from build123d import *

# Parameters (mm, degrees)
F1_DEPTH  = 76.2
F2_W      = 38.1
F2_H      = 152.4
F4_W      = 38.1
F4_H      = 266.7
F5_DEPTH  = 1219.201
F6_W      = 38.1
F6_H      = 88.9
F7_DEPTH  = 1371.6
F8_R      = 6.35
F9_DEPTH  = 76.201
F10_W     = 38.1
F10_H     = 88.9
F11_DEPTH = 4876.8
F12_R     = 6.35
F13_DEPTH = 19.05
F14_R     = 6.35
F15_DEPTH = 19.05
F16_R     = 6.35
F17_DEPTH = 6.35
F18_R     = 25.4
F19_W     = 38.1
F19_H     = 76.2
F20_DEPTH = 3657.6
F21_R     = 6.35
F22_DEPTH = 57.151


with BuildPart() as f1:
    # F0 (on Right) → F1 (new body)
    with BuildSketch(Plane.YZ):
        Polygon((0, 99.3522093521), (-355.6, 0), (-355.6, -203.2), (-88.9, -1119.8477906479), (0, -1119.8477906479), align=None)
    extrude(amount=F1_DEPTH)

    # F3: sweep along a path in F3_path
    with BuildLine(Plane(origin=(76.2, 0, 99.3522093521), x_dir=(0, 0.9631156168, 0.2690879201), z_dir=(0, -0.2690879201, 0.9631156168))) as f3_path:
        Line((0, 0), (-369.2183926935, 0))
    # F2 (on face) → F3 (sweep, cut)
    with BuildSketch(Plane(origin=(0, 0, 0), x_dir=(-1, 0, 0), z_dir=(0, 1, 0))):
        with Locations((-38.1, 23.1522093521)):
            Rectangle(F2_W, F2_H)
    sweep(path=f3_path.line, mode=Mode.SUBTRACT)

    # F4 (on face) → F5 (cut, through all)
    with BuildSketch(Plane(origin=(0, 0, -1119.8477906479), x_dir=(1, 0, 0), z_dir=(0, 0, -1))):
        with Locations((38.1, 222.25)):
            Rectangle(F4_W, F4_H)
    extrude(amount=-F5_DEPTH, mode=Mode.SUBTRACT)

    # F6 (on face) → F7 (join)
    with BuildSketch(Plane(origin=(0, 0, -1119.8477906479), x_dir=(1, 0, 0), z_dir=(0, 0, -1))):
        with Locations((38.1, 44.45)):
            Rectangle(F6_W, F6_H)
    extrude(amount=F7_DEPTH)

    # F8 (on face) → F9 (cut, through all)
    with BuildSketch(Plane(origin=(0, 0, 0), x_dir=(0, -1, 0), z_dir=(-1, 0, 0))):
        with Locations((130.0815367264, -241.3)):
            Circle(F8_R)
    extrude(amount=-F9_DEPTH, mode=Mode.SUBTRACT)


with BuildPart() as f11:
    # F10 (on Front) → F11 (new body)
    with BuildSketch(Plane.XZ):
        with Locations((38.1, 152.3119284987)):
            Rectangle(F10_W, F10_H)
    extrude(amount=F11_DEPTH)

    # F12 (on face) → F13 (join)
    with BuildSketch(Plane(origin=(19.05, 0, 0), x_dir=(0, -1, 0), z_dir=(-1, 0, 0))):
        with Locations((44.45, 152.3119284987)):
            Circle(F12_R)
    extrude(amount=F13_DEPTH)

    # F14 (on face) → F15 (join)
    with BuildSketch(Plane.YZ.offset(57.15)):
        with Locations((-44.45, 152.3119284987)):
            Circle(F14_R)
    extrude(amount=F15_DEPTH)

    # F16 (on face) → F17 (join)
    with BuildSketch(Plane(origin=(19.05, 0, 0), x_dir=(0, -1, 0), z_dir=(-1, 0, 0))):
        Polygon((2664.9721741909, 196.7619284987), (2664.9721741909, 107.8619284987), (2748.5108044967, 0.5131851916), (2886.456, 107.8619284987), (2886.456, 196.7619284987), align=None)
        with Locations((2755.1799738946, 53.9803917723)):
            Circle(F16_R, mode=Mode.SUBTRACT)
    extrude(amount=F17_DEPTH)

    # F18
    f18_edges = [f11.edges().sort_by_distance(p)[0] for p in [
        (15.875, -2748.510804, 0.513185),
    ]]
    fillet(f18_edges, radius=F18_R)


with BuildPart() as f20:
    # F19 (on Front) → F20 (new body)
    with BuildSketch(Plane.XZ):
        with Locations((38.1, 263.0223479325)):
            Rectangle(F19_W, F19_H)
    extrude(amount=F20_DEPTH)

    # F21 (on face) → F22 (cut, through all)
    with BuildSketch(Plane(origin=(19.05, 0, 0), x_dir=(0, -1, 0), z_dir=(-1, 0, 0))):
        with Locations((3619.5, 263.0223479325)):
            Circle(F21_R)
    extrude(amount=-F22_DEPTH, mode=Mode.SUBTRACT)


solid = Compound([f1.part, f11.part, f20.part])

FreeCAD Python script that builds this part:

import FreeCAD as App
import Part
import Sketcher

V = App.Vector
Q = App.Units.Quantity


def edges_at(feature, points):
    """Names of the edges that pass closest to the given points."""
    edges = feature.Shape.Edges
    near = lambda p: min(range(len(edges)), key=lambda i: edges[i].distToShape(Part.Vertex(*p))[0])
    return sorted({f"Edge{near(p) + 1}" for p in points})

doc = App.newDocument("Part")
params = doc.addObject("Spreadsheet::Sheet", "Params")
for row, (alias, value) in enumerate([
    ("sketch1_height", "8 in"),
    ("sketch1_height2", "48 in"),
    ("sketch1_width", "3.5 in"),
    ("pad1_length", "3 in"),
    ("sketch2_height", "6 in"),
    ("sketch2_width", "1.5 in"),
    ("sketch4_width", "1.5 in"),
    ("sketch4_height", "10.5 in"),
    ("sketch5_width", "1.5 in"),
    ("sketch5_height", "3.5 in"),
    ("pad2_length", "54 in"),
    ("sketch6_diameter", "0.5 in"),
    ("sketch7_width", "1.5 in"),
    ("sketch7_height", "3.5 in"),
    ("pad3_length", "192 in"),
    ("sketch8_diameter", "0.5 in"),
    ("pad4_length", "0.75 in"),
    ("sketch9_diameter", "0.5 in"),
    ("pad5_length", "0.75 in"),
    ("sketch10_diameter", "0.5 in"),
    ("sketch10_height", "3.5 in"),
    ("pad6_length", "0.25 in"),
    ("fillet_radius", "1 in"),
    ("sketch11_height", "3 in"),
    ("sketch11_width", "1.5 in"),
    ("pad7_length", "144 in"),
    ("sketch12_diameter", "0.5 in"),
], start=1):
    params.set(f"A{row}", alias)
    params.set(f"B{row}", "=" + value)
    params.setAlias(f"B{row}", alias)

body = doc.addObject("PartDesign::Body", "Body")

# Sketch on YZ plane
sketch1 = body.newObject("Sketcher::SketchObject", "Sketch")
sketch1.AttachmentSupport = (doc.getObject("YZ_Plane"), [""])
sketch1.MapMode = "FlatFace"
sketch1.addGeometry(Part.LineSegment(V(0, 99, 0), V(-356, 0, 0)), False)
sketch1.addGeometry(Part.LineSegment(V(-356, 0, 0), V(-356, -203, 0)), False)
sketch1.addGeometry(Part.LineSegment(V(-356, -203, 0), V(-89, -1120, 0)), False)
sketch1.addGeometry(Part.LineSegment(V(-89, -1120, 0), V(0, -1120, 0)), False)
sketch1.addGeometry(Part.LineSegment(V(0, -1120, 0), V(0, 99, 0)), False)
sketch1.addConstraint(Sketcher.Constraint("Coincident", 0, 2, 1, 1))
sketch1.addConstraint(Sketcher.Constraint("Coincident", 1, 2, 2, 1))
sketch1.addConstraint(Sketcher.Constraint("Coincident", 2, 2, 3, 1))
sketch1.addConstraint(Sketcher.Constraint("Coincident", 3, 2, 4, 1))
sketch1.addConstraint(Sketcher.Constraint("Coincident", 4, 2, 0, 1))
sketch1.addConstraint(Sketcher.Constraint("Vertical", 1))
sketch1.addConstraint(Sketcher.Constraint("Horizontal", 3))
sketch1.addConstraint(Sketcher.Constraint("Vertical", 4))
sketch1.addConstraint(Sketcher.Constraint("PointOnObject", 0, 2, -1))
sketch1.addConstraint(Sketcher.Constraint("PointOnObject", 3, 2, -2))
sketch1.addConstraint(Sketcher.Constraint("DistanceY", 1, 2, 1, 1, Q("8 in")))
sketch1.addConstraint(Sketcher.Constraint("DistanceY", 4, 1, 4, 2, Q("48 in")))
sketch1.addConstraint(Sketcher.Constraint("DistanceX", 3, 1, 3, 2, Q("3.5 in")))
sketch1.addConstraint(Sketcher.Constraint("DistanceX", 0, 2, -1, 1, Q("14 in")))
sketch1.addConstraint(Sketcher.Constraint("Angle", 0, Q("-164.39 deg")))
sketch1.setExpression("Constraints[10]", "Params.sketch1_height")
sketch1.setExpression("Constraints[11]", "Params.sketch1_height2")
sketch1.setExpression("Constraints[12]", "Params.sketch1_width")
pad1 = body.newObject("PartDesign::Pad", "Pad")
pad1.Profile = sketch1
pad1.setExpression("Length", "Params.pad1_length")

# Sketch on XZ plane
sketch2 = body.newObject("Sketcher::SketchObject", "Sketch001")
sketch2.AttachmentSupport = (doc.getObject("XZ_Plane"), [""])
sketch2.MapMode = "FlatFace"
sketch2.addGeometry(Part.LineSegment(V(57, 99, 0), V(57, -53, 0)), False)
sketch2.addGeometry(Part.LineSegment(V(57, -53, 0), V(19, -53, 0)), False)
sketch2.addGeometry(Part.LineSegment(V(19, -53, 0), V(19, 99, 0)), False)
sketch2.addGeometry(Part.LineSegment(V(19, 99, 0), V(57, 99, 0)), False)
sketch2.addConstraint(Sketcher.Constraint("Coincident", 0, 2, 1, 1))
sketch2.addConstraint(Sketcher.Constraint("Coincident", 1, 2, 2, 1))
sketch2.addConstraint(Sketcher.Constraint("Coincident", 2, 2, 3, 1))
sketch2.addConstraint(Sketcher.Constraint("Coincident", 3, 2, 0, 1))
sketch2.addConstraint(Sketcher.Constraint("Vertical", 0))
sketch2.addConstraint(Sketcher.Constraint("Horizontal", 1))
sketch2.addConstraint(Sketcher.Constraint("Vertical", 2))
sketch2.addConstraint(Sketcher.Constraint("Horizontal", 3))
sketch2.addConstraint(Sketcher.Constraint("DistanceY", 0, 2, 0, 1, Q("6 in")))
sketch2.addConstraint(Sketcher.Constraint("DistanceX", 1, 2, 1, 1, Q("1.5 in")))
sketch2.addConstraint(Sketcher.Constraint("DistanceX", -1, 1, 0, 2, Q("2.25 in")))
sketch2.addConstraint(Sketcher.Constraint("DistanceY", 0, 2, -1, 1, Q("53.047791 mm")))
sketch2.setExpression("Constraints[8]", "Params.sketch2_height")
sketch2.setExpression("Constraints[9]", "Params.sketch2_width")

# Sketch on an angled plane
sketch3 = body.newObject("Sketcher::SketchObject", "Sketch002")
sketch3.Placement = App.Placement(V(0, -25.748395, 92.158284), App.Rotation(V(0, -0.963115617, -0.26908792), V(1, 0, 0), V(0, -0.26908792, 0.963115617), "ZXY"))
sketch3.addGeometry(Part.LineSegment(V(-27, 76, 0), V(342, 76, 0)), False)
sketch3.addConstraint(Sketcher.Constraint("Horizontal", 0))
sketch3.addConstraint(Sketcher.Constraint("DistanceY", -1, 1, 0, 1, Q("3 in")))
sketch3.addConstraint(Sketcher.Constraint("DistanceX", 0, 1, 0, 2, Q("369.218393 mm")))
sketch3.addConstraint(Sketcher.Constraint("DistanceX", 0, 1, -1, 1, Q("26.734479 mm")))
doc.recompute()

subtractivepipe = body.newObject("PartDesign::SubtractivePipe", "SubtractivePipe")
subtractivepipe.Profile = sketch2
subtractivepipe.Spine = (sketch3, ["Edge1"])

# Sketch on XY plane
sketch4 = body.newObject("Sketcher::SketchObject", "Sketch003")
sketch4.AttachmentSupport = (doc.getObject("XY_Plane"), [""])
sketch4.MapMode = "FlatFace"
sketch4.AttachmentOffset = App.Placement(V(0, 0, -1119.847791), App.Rotation())
sketch4.addGeometry(Part.LineSegment(V(19, -356, 0), V(19, -89, 0)), False)
sketch4.addGeometry(Part.LineSegment(V(19, -89, 0), V(57, -89, 0)), False)
sketch4.addGeometry(Part.LineSegment(V(57, -89, 0), V(57, -356, 0)), False)
sketch4.addGeometry(Part.LineSegment(V(57, -356, 0), V(19, -356, 0)), False)
sketch4.addConstraint(Sketcher.Constraint("Coincident", 0, 2, 1, 1))
sketch4.addConstraint(Sketcher.Constraint("Coincident", 1, 2, 2, 1))
sketch4.addConstraint(Sketcher.Constraint("Coincident", 2, 2, 3, 1))
sketch4.addConstraint(Sketcher.Constraint("Coincident", 3, 2, 0, 1))
sketch4.addConstraint(Sketcher.Constraint("Vertical", 0))
sketch4.addConstraint(Sketcher.Constraint("Horizontal", 1))
sketch4.addConstraint(Sketcher.Constraint("Vertical", 2))
sketch4.addConstraint(Sketcher.Constraint("Horizontal", 3))
sketch4.addConstraint(Sketcher.Constraint("DistanceX", 1, 1, 1, 2, Q("1.5 in")))
sketch4.addConstraint(Sketcher.Constraint("DistanceY", 0, 1, 0, 2, Q("10.5 in")))
sketch4.addConstraint(Sketcher.Constraint("DistanceY", 2, 2, -1, 1, Q("14 in")))
sketch4.addConstraint(Sketcher.Constraint("DistanceX", -1, 1, 0, 2, Q("0.75 in")))
sketch4.setExpression("Constraints[8]", "Params.sketch4_width")
sketch4.setExpression("Constraints[9]", "Params.sketch4_height")
pocket1 = body.newObject("PartDesign::Pocket", "Pocket")
pocket1.Profile = sketch4
pocket1.Type = "ThroughAll"
pocket1.Reversed = True

# Sketch on XY plane
sketch5 = body.newObject("Sketcher::SketchObject", "Sketch004")
sketch5.AttachmentSupport = (doc.getObject("XY_Plane"), [""])
sketch5.MapMode = "FlatFace"
sketch5.AttachmentOffset = App.Placement(V(0, 0, -1119.847791), App.Rotation())
sketch5.addGeometry(Part.LineSegment(V(19, -89, 0), V(19, 0, 0)), False)
sketch5.addGeometry(Part.LineSegment(V(19, 0, 0), V(57, 0, 0)), False)
sketch5.addGeometry(Part.LineSegment(V(57, 0, 0), V(57, -89, 0)), False)
sketch5.addGeometry(Part.LineSegment(V(57, -89, 0), V(19, -89, 0)), False)
sketch5.addConstraint(Sketcher.Constraint("Coincident", 0, 2, 1, 1))
sketch5.addConstraint(Sketcher.Constraint("Coincident", 1, 2, 2, 1))
sketch5.addConstraint(Sketcher.Constraint("Coincident", 2, 2, 3, 1))
sketch5.addConstraint(Sketcher.Constraint("Coincident", 3, 2, 0, 1))
sketch5.addConstraint(Sketcher.Constraint("Vertical", 0))
sketch5.addConstraint(Sketcher.Constraint("Horizontal", 1))
sketch5.addConstraint(Sketcher.Constraint("Vertical", 2))
sketch5.addConstraint(Sketcher.Constraint("Horizontal", 3))
sketch5.addConstraint(Sketcher.Constraint("PointOnObject", 0, 2, -1))
sketch5.addConstraint(Sketcher.Constraint("DistanceX", 1, 1, 1, 2, Q("1.5 in")))
sketch5.addConstraint(Sketcher.Constraint("DistanceY", 0, 1, 0, 2, Q("3.5 in")))
sketch5.addConstraint(Sketcher.Constraint("DistanceX", -1, 1, 0, 2, Q("0.75 in")))
sketch5.setExpression("Constraints[9]", "Params.sketch5_width")
sketch5.setExpression("Constraints[10]", "Params.sketch5_height")
pad2 = body.newObject("PartDesign::Pad", "Pad001")
pad2.Profile = sketch5
pad2.setExpression("Length", "Params.pad2_length")
pad2.Reversed = True

# Sketch on YZ plane
sketch6 = body.newObject("Sketcher::SketchObject", "Sketch005")
sketch6.AttachmentSupport = (doc.getObject("YZ_Plane"), [""])
sketch6.MapMode = "FlatFace"
sketch6.addGeometry(Part.Circle(V(-130, -241, 0), V(0, 0, 1), 6), False)
sketch6.addConstraint(Sketcher.Constraint("Diameter", 0, Q("0.5 in")))
sketch6.addConstraint(Sketcher.Constraint("DistanceY", 0, 3, -1, 1, Q("9.5 in")))
sketch6.addConstraint(Sketcher.Constraint("DistanceX", 0, 3, -1, 1, Q("130.081537 mm")))
sketch6.setExpression("Constraints[0]", "Params.sketch6_diameter")
pocket2 = body.newObject("PartDesign::Pocket", "Pocket001")
pocket2.Profile = sketch6
pocket2.Type = "ThroughAll"
pocket2.Reversed = True
body2 = doc.addObject("PartDesign::Body", "Body001")

# Sketch on XZ plane
sketch7 = body2.newObject("Sketcher::SketchObject", "Sketch006")
sketch7.AttachmentSupport = (doc.getObject("XZ_Plane001"), [""])
sketch7.MapMode = "FlatFace"
sketch7.addGeometry(Part.LineSegment(V(19, 197, 0), V(19, 108, 0)), False)
sketch7.addGeometry(Part.LineSegment(V(19, 108, 0), V(57, 108, 0)), False)
sketch7.addGeometry(Part.LineSegment(V(57, 108, 0), V(57, 197, 0)), False)
sketch7.addGeometry(Part.LineSegment(V(57, 197, 0), V(19, 197, 0)), False)
sketch7.addConstraint(Sketcher.Constraint("Coincident", 0, 2, 1, 1))
sketch7.addConstraint(Sketcher.Constraint("Coincident", 1, 2, 2, 1))
sketch7.addConstraint(Sketcher.Constraint("Coincident", 2, 2, 3, 1))
sketch7.addConstraint(Sketcher.Constraint("Coincident", 3, 2, 0, 1))
sketch7.addConstraint(Sketcher.Constraint("Vertical", 0))
sketch7.addConstraint(Sketcher.Constraint("Horizontal", 1))
sketch7.addConstraint(Sketcher.Constraint("Vertical", 2))
sketch7.addConstraint(Sketcher.Constraint("Horizontal", 3))
sketch7.addConstraint(Sketcher.Constraint("DistanceX", 1, 1, 1, 2, Q("1.5 in")))
sketch7.addConstraint(Sketcher.Constraint("DistanceY", 0, 2, 0, 1, Q("3.5 in")))
sketch7.addConstraint(Sketcher.Constraint("DistanceX", -1, 1, 0, 2, Q("0.75 in")))
sketch7.addConstraint(Sketcher.Constraint("DistanceY", -1, 1, 0, 2, Q("107.861928 mm")))
sketch7.setExpression("Constraints[8]", "Params.sketch7_width")
sketch7.setExpression("Constraints[9]", "Params.sketch7_height")
pad3 = body2.newObject("PartDesign::Pad", "Pad002")
pad3.Profile = sketch7
pad3.setExpression("Length", "Params.pad3_length")

# Sketch on YZ plane
sketch8 = body2.newObject("Sketcher::SketchObject", "Sketch007")
sketch8.AttachmentSupport = (doc.getObject("YZ_Plane001"), [""])
sketch8.MapMode = "FlatFace"
sketch8.AttachmentOffset = App.Placement(V(0, 0, 0.75 * 25.4), App.Rotation())
sketch8.addGeometry(Part.Circle(V(-44, 152, 0), V(0, 0, 1), 6), False)
sketch8.addConstraint(Sketcher.Constraint("Diameter", 0, Q("0.5 in")))
sketch8.addConstraint(Sketcher.Constraint("DistanceX", 0, 3, -1, 1, Q("1.75 in")))
sketch8.addConstraint(Sketcher.Constraint("DistanceY", -1, 1, 0, 3, Q("152.311928 mm")))
sketch8.setExpression("Constraints[0]", "Params.sketch8_diameter")
pad4 = body2.newObject("PartDesign::Pad", "Pad003")
pad4.Profile = sketch8
pad4.setExpression("Length", "Params.pad4_length")
pad4.Reversed = True

# Sketch on YZ plane
sketch9 = body2.newObject("Sketcher::SketchObject", "Sketch008")
sketch9.AttachmentSupport = (doc.getObject("YZ_Plane001"), [""])
sketch9.MapMode = "FlatFace"
sketch9.AttachmentOffset = App.Placement(V(0, 0, 2.25 * 25.4), App.Rotation())
sketch9.addGeometry(Part.Circle(V(-44, 152, 0), V(0, 0, 1), 6), False)
sketch9.addConstraint(Sketcher.Constraint("Diameter", 0, Q("0.5 in")))
sketch9.addConstraint(Sketcher.Constraint("DistanceX", 0, 3, -1, 1, Q("1.75 in")))
sketch9.addConstraint(Sketcher.Constraint("DistanceY", -1, 1, 0, 3, Q("152.311928 mm")))
sketch9.setExpression("Constraints[0]", "Params.sketch9_diameter")
pad5 = body2.newObject("PartDesign::Pad", "Pad004")
pad5.Profile = sketch9
pad5.setExpression("Length", "Params.pad5_length")

# Sketch on YZ plane
sketch10 = body2.newObject("Sketcher::SketchObject", "Sketch009")
sketch10.AttachmentSupport = (doc.getObject("YZ_Plane001"), [""])
sketch10.MapMode = "FlatFace"
sketch10.AttachmentOffset = App.Placement(V(0, 0, 0.75 * 25.4), App.Rotation())
sketch10.addGeometry(Part.LineSegment(V(-2665, 197, 0), V(-2665, 108, 0)), False)
sketch10.addGeometry(Part.LineSegment(V(-2665, 108, 0), V(-2749, 1, 0)), False)
sketch10.addGeometry(Part.LineSegment(V(-2749, 1, 0), V(-2886, 108, 0)), False)
sketch10.addGeometry(Part.LineSegment(V(-2886, 108, 0), V(-2886, 197, 0)), False)
sketch10.addGeometry(Part.LineSegment(V(-2886, 197, 0), V(-2665, 197, 0)), False)
sketch10.addGeometry(Part.Circle(V(-2755, 54, 0), V(0, 0, 1), 6), False)
sketch10.addConstraint(Sketcher.Constraint("Coincident", 0, 2, 1, 1))
sketch10.addConstraint(Sketcher.Constraint("Coincident", 1, 2, 2, 1))
sketch10.addConstraint(Sketcher.Constraint("Coincident", 2, 2, 3, 1))
sketch10.addConstraint(Sketcher.Constraint("Coincident", 3, 2, 4, 1))
sketch10.addConstraint(Sketcher.Constraint("Coincident", 4, 2, 0, 1))
sketch10.addConstraint(Sketcher.Constraint("Vertical", 0))
sketch10.addConstraint(Sketcher.Constraint("Vertical", 3))
sketch10.addConstraint(Sketcher.Constraint("Horizontal", 4))
sketch10.addConstraint(Sketcher.Constraint("Perpendicular", 1, 2))
sketch10.addConstraint(Sketcher.Constraint("Horizontal", 0, 2, 2, 2))
sketch10.addConstraint(Sketcher.Constraint("Diameter", 5, Q("0.5 in")))
sketch10.addConstraint(Sketcher.Constraint("DistanceY", 0, 2, 0, 1, Q("3.5 in")))
sketch10.addConstraint(Sketcher.Constraint("DistanceX", 2, 2, -1, 1, Q("113.64 in")))
sketch10.addConstraint(Sketcher.Constraint("Angle", 1, Q("-127.89 deg")))
sketch10.addConstraint(Sketcher.Constraint("DistanceX", 5, 3, 0, 2, Q("90.2078 mm")))
sketch10.addConstraint(Sketcher.Constraint("Distance", 1, Q("136.023731 mm")))
sketch10.addConstraint(Sketcher.Constraint("DistanceY", -1, 1, 5, 3, Q("53.980392 mm")))
sketch10.addConstraint(Sketcher.Constraint("DistanceY", -1, 1, 0, 2, Q("107.861928 mm")))
sketch10.setExpression("Constraints[10]", "Params.sketch10_diameter")
sketch10.setExpression("Constraints[11]", "Params.sketch10_height")
pad6 = body2.newObject("PartDesign::Pad", "Pad005")
pad6.Profile = sketch10
pad6.setExpression("Length", "Params.pad6_length")
pad6.Reversed = True
doc.recompute()

fillet = body2.newObject("PartDesign::Fillet", "Fillet")
fillet.Base = (pad6, edges_at(pad6, [(15.875, -2748.511, 0.513)]))
fillet.setExpression("Radius", "Params.fillet_radius")
body3 = doc.addObject("PartDesign::Body", "Body002")

# Sketch on XZ plane
sketch11 = body3.newObject("Sketcher::SketchObject", "Sketch010")
sketch11.AttachmentSupport = (doc.getObject("XZ_Plane002"), [""])
sketch11.MapMode = "FlatFace"
sketch11.addGeometry(Part.LineSegment(V(19, 301, 0), V(19, 225, 0)), False)
sketch11.addGeometry(Part.LineSegment(V(19, 225, 0), V(57, 225, 0)), False)
sketch11.addGeometry(Part.LineSegment(V(57, 225, 0), V(57, 301, 0)), False)
sketch11.addGeometry(Part.LineSegment(V(57, 301, 0), V(19, 301, 0)), False)
sketch11.addConstraint(Sketcher.Constraint("Coincident", 0, 2, 1, 1))
sketch11.addConstraint(Sketcher.Constraint("Coincident", 1, 2, 2, 1))
sketch11.addConstraint(Sketcher.Constraint("Coincident", 2, 2, 3, 1))
sketch11.addConstraint(Sketcher.Constraint("Coincident", 3, 2, 0, 1))
sketch11.addConstraint(Sketcher.Constraint("Vertical", 0))
sketch11.addConstraint(Sketcher.Constraint("Horizontal", 1))
sketch11.addConstraint(Sketcher.Constraint("Vertical", 2))
sketch11.addConstraint(Sketcher.Constraint("Horizontal", 3))
sketch11.addConstraint(Sketcher.Constraint("DistanceY", 0, 2, 0, 1, Q("3 in")))
sketch11.addConstraint(Sketcher.Constraint("DistanceX", 1, 1, 1, 2, Q("1.5 in")))
sketch11.addConstraint(Sketcher.Constraint("DistanceX", -1, 1, 0, 2, Q("0.75 in")))
sketch11.addConstraint(Sketcher.Constraint("DistanceY", -1, 1, 0, 2, Q("224.922348 mm")))
sketch11.setExpression("Constraints[8]", "Params.sketch11_height")
sketch11.setExpression("Constraints[9]", "Params.sketch11_width")
pad7 = body3.newObject("PartDesign::Pad", "Pad006")
pad7.Profile = sketch11
pad7.setExpression("Length", "Params.pad7_length")

# Sketch on YZ plane
sketch12 = body3.newObject("Sketcher::SketchObject", "Sketch011")
sketch12.AttachmentSupport = (doc.getObject("YZ_Plane002"), [""])
sketch12.MapMode = "FlatFace"
sketch12.AttachmentOffset = App.Placement(V(0, 0, 0.75 * 25.4), App.Rotation())
sketch12.addGeometry(Part.Circle(V(-3620, 263, 0), V(0, 0, 1), 6), False)
sketch12.addConstraint(Sketcher.Constraint("Diameter", 0, Q("0.5 in")))
sketch12.addConstraint(Sketcher.Constraint("DistanceX", 0, 3, -1, 1, Q("142.5 in")))
sketch12.addConstraint(Sketcher.Constraint("DistanceY", -1, 1, 0, 3, Q("263.022348 mm")))
sketch12.setExpression("Constraints[0]", "Params.sketch12_diameter")
pocket3 = body3.newObject("PartDesign::Pocket", "Pocket002")
pocket3.Profile = sketch12
pocket3.Type = "ThroughAll"
pocket3.Reversed = True

doc.recompute()
